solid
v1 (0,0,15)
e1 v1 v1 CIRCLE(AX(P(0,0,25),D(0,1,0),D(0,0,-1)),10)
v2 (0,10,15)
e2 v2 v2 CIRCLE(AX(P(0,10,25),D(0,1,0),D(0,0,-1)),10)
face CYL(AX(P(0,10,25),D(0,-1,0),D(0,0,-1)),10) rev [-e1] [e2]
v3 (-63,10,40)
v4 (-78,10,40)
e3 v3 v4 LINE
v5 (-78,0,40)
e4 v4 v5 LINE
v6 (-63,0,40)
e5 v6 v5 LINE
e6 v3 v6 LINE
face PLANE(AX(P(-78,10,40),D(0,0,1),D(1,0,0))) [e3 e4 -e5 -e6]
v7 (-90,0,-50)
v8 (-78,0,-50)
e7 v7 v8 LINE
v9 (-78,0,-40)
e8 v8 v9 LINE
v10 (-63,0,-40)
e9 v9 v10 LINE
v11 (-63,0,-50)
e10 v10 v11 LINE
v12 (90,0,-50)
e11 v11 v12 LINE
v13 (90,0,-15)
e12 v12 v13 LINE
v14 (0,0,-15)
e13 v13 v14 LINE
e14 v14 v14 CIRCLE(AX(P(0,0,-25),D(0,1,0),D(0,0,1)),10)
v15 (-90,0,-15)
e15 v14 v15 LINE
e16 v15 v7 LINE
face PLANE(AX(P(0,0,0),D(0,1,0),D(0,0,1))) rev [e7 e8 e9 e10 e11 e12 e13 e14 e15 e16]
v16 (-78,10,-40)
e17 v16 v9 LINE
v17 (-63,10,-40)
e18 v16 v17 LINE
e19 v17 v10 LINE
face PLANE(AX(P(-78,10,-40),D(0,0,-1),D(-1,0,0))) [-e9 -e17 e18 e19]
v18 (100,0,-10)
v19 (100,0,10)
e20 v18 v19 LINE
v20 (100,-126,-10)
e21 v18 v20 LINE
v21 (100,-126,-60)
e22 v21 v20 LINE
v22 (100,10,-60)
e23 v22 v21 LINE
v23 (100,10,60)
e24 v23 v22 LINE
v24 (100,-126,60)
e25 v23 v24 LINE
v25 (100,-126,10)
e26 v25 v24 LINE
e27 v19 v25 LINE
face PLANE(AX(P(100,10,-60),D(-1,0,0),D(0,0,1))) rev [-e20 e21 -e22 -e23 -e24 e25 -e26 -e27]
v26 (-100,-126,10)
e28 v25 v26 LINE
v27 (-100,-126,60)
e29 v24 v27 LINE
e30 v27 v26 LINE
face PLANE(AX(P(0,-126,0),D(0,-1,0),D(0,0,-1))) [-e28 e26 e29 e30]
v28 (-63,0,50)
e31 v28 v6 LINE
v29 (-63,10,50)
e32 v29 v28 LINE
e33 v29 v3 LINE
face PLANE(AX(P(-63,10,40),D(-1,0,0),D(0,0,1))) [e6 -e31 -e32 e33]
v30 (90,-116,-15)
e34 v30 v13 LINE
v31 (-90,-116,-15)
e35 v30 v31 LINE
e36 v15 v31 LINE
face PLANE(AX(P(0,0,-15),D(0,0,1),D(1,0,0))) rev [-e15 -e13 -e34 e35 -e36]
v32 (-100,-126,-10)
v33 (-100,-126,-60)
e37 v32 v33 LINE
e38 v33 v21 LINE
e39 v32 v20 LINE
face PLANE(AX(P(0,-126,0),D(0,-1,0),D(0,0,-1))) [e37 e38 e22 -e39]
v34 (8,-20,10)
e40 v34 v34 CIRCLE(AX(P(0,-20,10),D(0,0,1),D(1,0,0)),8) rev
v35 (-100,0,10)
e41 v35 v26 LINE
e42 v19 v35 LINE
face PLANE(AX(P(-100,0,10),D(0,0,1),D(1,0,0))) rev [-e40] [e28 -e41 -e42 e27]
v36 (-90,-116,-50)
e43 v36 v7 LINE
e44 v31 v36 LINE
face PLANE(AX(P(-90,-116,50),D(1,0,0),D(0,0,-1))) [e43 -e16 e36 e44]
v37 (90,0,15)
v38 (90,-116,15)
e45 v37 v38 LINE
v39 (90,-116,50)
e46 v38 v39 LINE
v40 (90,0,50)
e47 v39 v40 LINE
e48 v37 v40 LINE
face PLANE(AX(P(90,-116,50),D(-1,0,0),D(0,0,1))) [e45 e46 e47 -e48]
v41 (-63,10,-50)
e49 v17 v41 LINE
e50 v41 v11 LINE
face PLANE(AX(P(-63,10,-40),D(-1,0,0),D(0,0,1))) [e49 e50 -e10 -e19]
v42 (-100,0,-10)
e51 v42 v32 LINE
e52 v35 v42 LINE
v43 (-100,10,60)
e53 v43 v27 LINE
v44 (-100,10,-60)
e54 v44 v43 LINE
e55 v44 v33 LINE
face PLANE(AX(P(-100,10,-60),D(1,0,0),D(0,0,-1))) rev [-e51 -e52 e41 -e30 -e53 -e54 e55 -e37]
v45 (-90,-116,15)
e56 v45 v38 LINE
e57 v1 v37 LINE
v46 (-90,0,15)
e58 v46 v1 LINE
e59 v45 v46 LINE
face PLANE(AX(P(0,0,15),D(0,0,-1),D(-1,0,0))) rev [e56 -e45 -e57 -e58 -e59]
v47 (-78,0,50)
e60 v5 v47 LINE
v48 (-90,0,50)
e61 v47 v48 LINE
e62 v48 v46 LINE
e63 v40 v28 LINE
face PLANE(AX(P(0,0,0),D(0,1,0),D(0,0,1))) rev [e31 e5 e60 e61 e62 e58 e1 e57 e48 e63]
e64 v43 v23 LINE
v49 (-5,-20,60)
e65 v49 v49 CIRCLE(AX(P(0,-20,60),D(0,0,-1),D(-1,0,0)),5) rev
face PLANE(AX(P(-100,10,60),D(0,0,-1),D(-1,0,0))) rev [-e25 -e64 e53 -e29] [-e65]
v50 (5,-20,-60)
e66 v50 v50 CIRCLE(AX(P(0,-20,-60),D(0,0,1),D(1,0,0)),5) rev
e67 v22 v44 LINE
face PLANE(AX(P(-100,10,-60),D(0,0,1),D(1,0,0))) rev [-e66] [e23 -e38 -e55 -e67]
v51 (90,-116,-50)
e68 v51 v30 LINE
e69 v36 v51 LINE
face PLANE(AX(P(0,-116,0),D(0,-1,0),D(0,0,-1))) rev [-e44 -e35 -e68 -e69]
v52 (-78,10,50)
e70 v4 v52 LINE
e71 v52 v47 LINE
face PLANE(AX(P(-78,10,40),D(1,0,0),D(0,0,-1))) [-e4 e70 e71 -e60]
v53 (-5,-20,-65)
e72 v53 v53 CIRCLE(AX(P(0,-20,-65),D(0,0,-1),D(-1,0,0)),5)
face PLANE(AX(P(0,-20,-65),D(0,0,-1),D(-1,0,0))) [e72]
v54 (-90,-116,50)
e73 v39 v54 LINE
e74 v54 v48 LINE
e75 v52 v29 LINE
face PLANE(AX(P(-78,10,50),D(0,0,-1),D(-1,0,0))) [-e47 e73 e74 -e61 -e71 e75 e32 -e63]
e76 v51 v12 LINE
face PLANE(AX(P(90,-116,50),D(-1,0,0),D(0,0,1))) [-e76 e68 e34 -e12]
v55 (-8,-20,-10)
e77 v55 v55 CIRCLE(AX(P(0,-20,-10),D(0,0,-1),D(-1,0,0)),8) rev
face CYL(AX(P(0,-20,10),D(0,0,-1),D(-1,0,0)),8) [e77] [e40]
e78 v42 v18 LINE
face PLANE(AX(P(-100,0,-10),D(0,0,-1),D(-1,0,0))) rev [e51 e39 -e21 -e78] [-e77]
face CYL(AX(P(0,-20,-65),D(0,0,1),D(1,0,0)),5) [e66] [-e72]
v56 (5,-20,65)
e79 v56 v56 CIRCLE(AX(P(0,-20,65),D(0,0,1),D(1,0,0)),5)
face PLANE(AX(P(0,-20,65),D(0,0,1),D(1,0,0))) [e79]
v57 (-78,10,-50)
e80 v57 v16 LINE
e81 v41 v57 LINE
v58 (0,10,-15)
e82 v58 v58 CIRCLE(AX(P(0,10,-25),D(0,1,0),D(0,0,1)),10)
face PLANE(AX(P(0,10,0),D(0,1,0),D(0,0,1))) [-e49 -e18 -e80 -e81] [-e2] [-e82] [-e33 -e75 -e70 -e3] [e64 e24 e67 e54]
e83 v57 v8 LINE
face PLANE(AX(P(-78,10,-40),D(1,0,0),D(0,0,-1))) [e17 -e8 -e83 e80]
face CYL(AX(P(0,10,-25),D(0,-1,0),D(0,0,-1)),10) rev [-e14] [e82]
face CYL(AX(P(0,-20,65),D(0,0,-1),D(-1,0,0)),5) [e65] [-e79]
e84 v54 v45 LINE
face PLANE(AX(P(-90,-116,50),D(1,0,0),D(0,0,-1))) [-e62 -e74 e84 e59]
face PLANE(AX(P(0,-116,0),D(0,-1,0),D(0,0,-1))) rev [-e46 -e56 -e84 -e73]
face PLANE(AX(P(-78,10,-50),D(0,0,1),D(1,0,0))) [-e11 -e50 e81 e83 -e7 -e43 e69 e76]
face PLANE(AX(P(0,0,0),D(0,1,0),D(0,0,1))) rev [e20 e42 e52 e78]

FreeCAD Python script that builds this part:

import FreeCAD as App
import Part
import Sketcher

V = App.Vector


def add_polygon(sketch, points):
    """Adds a closed chain of lines whose ends are joined by coincident constraints."""
    first, n = sketch.GeometryCount, len(points)
    for a, b in zip(points, points[1:] + points[:1]):
        sketch.addGeometry(Part.LineSegment(App.Vector(*a, 0), App.Vector(*b, 0)), False)
    for i in range(n):
        sketch.addConstraint(Sketcher.Constraint("Coincident", first + i, 2, first + (i + 1) % n, 1))

doc = App.newDocument("Part")
params = doc.addObject("Spreadsheet::Sheet", "Params")
for row, (alias, value) in enumerate([
    ("sketch1_diameter", "20 mm"),
    ("sketch1_width", "200 mm"),
    ("sketch1_width2", "15 mm"),
    ("sketch1_height", "120 mm"),
    ("sketch1_height2", "10 mm"),
    ("pad1_length", "10 mm"),
    ("sketch2_width", "200 mm"),
    ("sketch2_width2", "180 mm"),
    ("sketch2_height", "120 mm"),
    ("sketch2_height2", "100 mm"),
    ("pad2_length", "116 mm"),
    ("sketch3_width", "200 mm"),
    ("sketch3_height", "120 mm"),
    ("pad3_length", "10 mm"),
    ("sketch4_width", "200 mm"),
    ("sketch4_height", "20 mm"),
    ("pocket1_length", "126 mm"),
    ("sketch5_width", "200 mm"),
    ("sketch5_height", "126 mm"),
    ("pad4_length", "5 mm"),
    ("sketch6_width", "200 mm"),
    ("sketch6_height", "126 mm"),
    ("pad5_length", "5 mm"),
    ("sketch7_diameter", "16 mm"),
    ("pad6_length", "20 mm"),
    ("sketch8_diameter", "10 mm"),
    ("pad7_length", "5 mm"),
    ("sketch9_diameter", "10 mm"),
    ("pad8_length", "5 mm"),
], start=1):
    params.set(f"A{row}", alias)
    params.set(f"B{row}", "=" + value)
    params.setAlias(f"B{row}", alias)

body = doc.addObject("PartDesign::Body", "Body")

sketch1 = body.newObject("Sketcher::SketchObject", "Sketch")
sketch1.AttachmentSupport = (doc.getObject("XZ_Plane"), [""])
sketch1.MapMode = "FlatFace"
add_polygon(sketch1, [(-100, -60), (-100, 60), (100, 60), (100, -60)])
add_polygon(sketch1, [(-63, 50), (-78, 50), (-78, 40), (-63, 40)])
sketch1.addGeometry(Part.Circle(V(0, 25, 0), V(0, 0, 1), 10), False)
add_polygon(sketch1, [(-63, -40), (-78, -40), (-78, -50), (-63, -50)])
sketch1.addGeometry(Part.Circle(V(0, -25, 0), V(0, 0, 1), 10), False)
sketch1.addConstraint(Sketcher.Constraint("Vertical", 0))
sketch1.addConstraint(Sketcher.Constraint("Horizontal", 1))
sketch1.addConstraint(Sketcher.Constraint("Vertical", 2))
sketch1.addConstraint(Sketcher.Constraint("Horizontal", 3))
sketch1.addConstraint(Sketcher.Constraint("Horizontal", 4))
sketch1.addConstraint(Sketcher.Constraint("Vertical", 5))
sketch1.addConstraint(Sketcher.Constraint("Horizontal", 6))
sketch1.addConstraint(Sketcher.Constraint("Vertical", 7))
sketch1.addConstraint(Sketcher.Constraint("Horizontal", 9))
sketch1.addConstraint(Sketcher.Constraint("Vertical", 10))
sketch1.addConstraint(Sketcher.Constraint("Horizontal", 11))
sketch1.addConstraint(Sketcher.Constraint("Vertical", 12))
sketch1.addConstraint(Sketcher.Constraint("Equal", 8, 13))
sketch1.addConstraint(Sketcher.Constraint("Symmetric", 8, 3, 13, 3, -1, 1))
sketch1.addConstraint(Sketcher.Constraint("Symmetric", 0, 2, 2, 2, -1, 1))
sketch1.addConstraint(Sketcher.Constraint("Symmetric", 5, 2, 9, 2, -1))
sketch1.addConstraint(Sketcher.Constraint("Symmetric", 7, 2, 11, 2, -1))
sketch1.addConstraint(Sketcher.Constraint("PointOnObject", 8, 3, -2))
sketch1.addConstraint(Sketcher.Constraint("Diameter", 8, 20.0))
sketch1.addConstraint(Sketcher.Constraint("DistanceX", 1, 1, 1, 2, 200.0))
sketch1.addConstraint(Sketcher.Constraint("DistanceX", 4, 2, 4, 1, 15.0))
sketch1.addConstraint(Sketcher.Constraint("DistanceY", 0, 1, 0, 2, 120.0))
sketch1.addConstraint(Sketcher.Constraint("DistanceY", 5, 2, 5, 1, 10.0))
sketch1.addConstraint(Sketcher.Constraint("DistanceY", -1, 1, 8, 3, 25.0))
sketch1.addConstraint(Sketcher.Constraint("DistanceX", 4, 2, -1, 1, 78.0))
sketch1.addConstraint(Sketcher.Constraint("DistanceY", -1, 1, 4, 2, 50.0))
sketch1.setExpression("Constraints[30]", "Params.sketch1_diameter")
sketch1.setExpression("Constraints[31]", "Params.sketch1_width")
sketch1.setExpression("Constraints[32]", "Params.sketch1_width2")
sketch1.setExpression("Constraints[33]", "Params.sketch1_height")
sketch1.setExpression("Constraints[34]", "Params.sketch1_height2")
pad1 = body.newObject("PartDesign::Pad", "Pad")
pad1.Profile = sketch1
pad1.setExpression("Length", "Params.pad1_length")
pad1.Reversed = True

sketch2 = body.newObject("Sketcher::SketchObject", "Sketch001")
sketch2.AttachmentSupport = (doc.getObject("XZ_Plane"), [""])
sketch2.MapMode = "FlatFace"
add_polygon(sketch2, [(-100, 60), (-100, -60), (100, -60), (100, 60)])
add_polygon(sketch2, [(90, -50), (-90, -50), (-90, 50), (90, 50)])
sketch2.addConstraint(Sketcher.Constraint("Vertical", 0))
sketch2.addConstraint(Sketcher.Constraint("Horizontal", 1))
sketch2.addConstraint(Sketcher.Constraint("Vertical", 2))
sketch2.addConstraint(Sketcher.Constraint("Horizontal", 3))
sketch2.addConstraint(Sketcher.Constraint("Horizontal", 4))
sketch2.addConstraint(Sketcher.Constraint("Vertical", 5))
sketch2.addConstraint(Sketcher.Constraint("Horizontal", 6))
sketch2.addConstraint(Sketcher.Constraint("Vertical", 7))
sketch2.addConstraint(Sketcher.Constraint("Symmetric", 0, 2, 2, 2, -1, 1))
sketch2.addConstraint(Sketcher.Constraint("Symmetric", 4, 2, 6, 2, -1, 1))
sketch2.addConstraint(Sketcher.Constraint("DistanceX", 1, 1, 1, 2, 200.0))
sketch2.addConstraint(Sketcher.Constraint("DistanceX", 4, 2, 4, 1, 180.0))
sketch2.addConstraint(Sketcher.Constraint("DistanceY", 0, 2, 0, 1, 120.0))
sketch2.addConstraint(Sketcher.Constraint("DistanceY", 5, 1, 5, 2, 100.0))
sketch2.setExpression("Constraints[18]", "Params.sketch2_width")
sketch2.setExpression("Constraints[19]", "Params.sketch2_width2")
sketch2.setExpression("Constraints[20]", "Params.sketch2_height")
sketch2.setExpression("Constraints[21]", "Params.sketch2_height2")
pad2 = body.newObject("PartDesign::Pad", "Pad001")
pad2.Profile = sketch2
pad2.setExpression("Length", "Params.pad2_length")

sketch3 = body.newObject("Sketcher::SketchObject", "Sketch002")
sketch3.AttachmentSupport = (doc.getObject("XZ_Plane"), [""])
sketch3.MapMode = "FlatFace"
sketch3.AttachmentOffset = App.Placement(V(0, 0, 116), App.Rotation())
add_polygon(sketch3, [(-100, 60), (-100, -60), (100, -60), (100, 60)])
sketch3.addConstraint(Sketcher.Constraint("Vertical", 0))
sketch3.addConstraint(Sketcher.Constraint("Horizontal", 1))
sketch3.addConstraint(Sketcher.Constraint("Vertical", 2))
sketch3.addConstraint(Sketcher.Constraint("Horizontal", 3))
sketch3.addConstraint(Sketcher.Constraint("Symmetric", 0, 2, 2, 2, -1, 1))
sketch3.addConstraint(Sketcher.Constraint("DistanceX", 1, 1, 1, 2, 200.0))
sketch3.addConstraint(Sketcher.Constraint("DistanceY", 0, 2, 0, 1, 120.0))
sketch3.setExpression("Constraints[9]", "Params.sketch3_width")
sketch3.setExpression("Constraints[10]", "Params.sketch3_height")
pad3 = body.newObject("PartDesign::Pad", "Pad002")
pad3.Profile = sketch3
pad3.setExpression("Length", "Params.pad3_length")

sketch4 = body.newObject("Sketcher::SketchObject", "Sketch003")
sketch4.AttachmentSupport = (doc.getObject("XZ_Plane"), [""])
sketch4.MapMode = "FlatFace"
sketch4.AttachmentOffset = App.Placement(V(0, 0, 126), App.Rotation())
add_polygon(sketch4, [(-100, 10), (-100, -10), (100, -10), (100, 10)])
sketch4.addConstraint(Sketcher.Constraint("Vertical", 0))
sketch4.addConstraint(Sketcher.Constraint("Horizontal", 1))
sketch4.addConstraint(Sketcher.Constraint("Vertical", 2))
sketch4.addConstraint(Sketcher.Constraint("Horizontal", 3))
sketch4.addConstraint(Sketcher.Constraint("Symmetric", 0, 2, 2, 2, -1, 1))
sketch4.addConstraint(Sketcher.Constraint("DistanceX", 1, 1, 1, 2, 200.0))
sketch4.addConstraint(Sketcher.Constraint("DistanceY", 0, 2, 0, 1, 20.0))
sketch4.setExpression("Constraints[9]", "Params.sketch4_width")
sketch4.setExpression("Constraints[10]", "Params.sketch4_height")
pocket1 = body.newObject("PartDesign::Pocket", "Pocket")
pocket1.Profile = sketch4
pocket1.setExpression("Length", "Params.pocket1_length")

sketch5 = body.newObject("Sketcher::SketchObject", "Sketch004")
sketch5.AttachmentSupport = (doc.getObject("XY_Plane"), [""])
sketch5.MapMode = "FlatFace"
sketch5.AttachmentOffset = App.Placement(V(0, 0, 10), App.Rotation())
add_polygon(sketch5, [(100, 0), (100, -126), (-100, -126), (-100, 0)])
sketch5.addConstraint(Sketcher.Constraint("Vertical", 0))
sketch5.addConstraint(Sketcher.Constraint("Horizontal", 1))
sketch5.addConstraint(Sketcher.Constraint("Vertical", 2))
sketch5.addConstraint(Sketcher.Constraint("Horizontal", 3))
sketch5.addConstraint(Sketcher.Constraint("Symmetric", 2, 2, 3, 2, -1, 1))
sketch5.addConstraint(Sketcher.Constraint("DistanceX", 1, 2, 1, 1, 200.0))
sketch5.addConstraint(Sketcher.Constraint("DistanceY", 0, 2, 0, 1, 126.0))
sketch5.setExpression("Constraints[9]", "Params.sketch5_width")
sketch5.setExpression("Constraints[10]", "Params.sketch5_height")
pad4 = body.newObject("PartDesign::Pad", "Pad003")
pad4.Profile = sketch5
pad4.setExpression("Length", "Params.pad4_length")

sketch6 = body.newObject("Sketcher::SketchObject", "Sketch005")
sketch6.AttachmentSupport = (doc.getObject("XY_Plane"), [""])
sketch6.MapMode = "FlatFace"
sketch6.AttachmentOffset = App.Placement(V(0, 0, -10), App.Rotation())
add_polygon(sketch6, [(-100, 0), (-100, -126), (100, -126), (100, 0)])
sketch6.addConstraint(Sketcher.Constraint("Vertical", 0))
sketch6.addConstraint(Sketcher.Constraint("Horizontal", 1))
sketch6.addConstraint(Sketcher.Constraint("Vertical", 2))
sketch6.addConstraint(Sketcher.Constraint("Horizontal", 3))
sketch6.addConstraint(Sketcher.Constraint("Symmetric", 2, 2, 3, 2, -1, 1))
sketch6.addConstraint(Sketcher.Constraint("DistanceX", 1, 1, 1, 2, 200.0))
sketch6.addConstraint(Sketcher.Constraint("DistanceY", 0, 2, 0, 1, 126.0))
sketch6.setExpression("Constraints[9]", "Params.sketch6_width")
sketch6.setExpression("Constraints[10]", "Params.sketch6_height")
pad5 = body.newObject("PartDesign::Pad", "Pad004")
pad5.Profile = sketch6
pad5.setExpression("Length", "Params.pad5_length")
pad5.Reversed = True

sketch7 = body.newObject("Sketcher::SketchObject", "Sketch006")
sketch7.AttachmentSupport = (doc.getObject("XY_Plane"), [""])
sketch7.MapMode = "FlatFace"
sketch7.AttachmentOffset = App.Placement(V(0, 0, -10), App.Rotation())
sketch7.addGeometry(Part.Circle(V(0, -20, 0), V(0, 0, 1), 8), False)
sketch7.addConstraint(Sketcher.Constraint("PointOnObject", 0, 3, -2))
sketch7.addConstraint(Sketcher.Constraint("Diameter", 0, 16.0))
sketch7.addConstraint(Sketcher.Constraint("DistanceY", 0, 3, -1, 1, 20.0))
sketch7.setExpression("Constraints[1]", "Params.sketch7_diameter")
pad6 = body.newObject("PartDesign::Pad", "Pad005")
pad6.Profile = sketch7
pad6.setExpression("Length", "Params.pad6_length")

sketch8 = body.newObject("Sketcher::SketchObject", "Sketch007")
sketch8.AttachmentSupport = (doc.getObject("XY_Plane"), [""])
sketch8.MapMode = "FlatFace"
sketch8.AttachmentOffset = App.Placement(V(0, 0, 60), App.Rotation())
sketch8.addGeometry(Part.Circle(V(0, -20, 0), V(0, 0, 1), 5), False)
sketch8.addConstraint(Sketcher.Constraint("PointOnObject", 0, 3, -2))
sketch8.addConstraint(Sketcher.Constraint("Diameter", 0, 10.0))
sketch8.addConstraint(Sketcher.Constraint("DistanceY", 0, 3, -1, 1, 20.0))
sketch8.setExpression("Constraints[1]", "Params.sketch8_diameter")
pad7 = body.newObject("PartDesign::Pad", "Pad006")
pad7.Profile = sketch8
pad7.setExpression("Length", "Params.pad7_length")

sketch9 = body.newObject("Sketcher::SketchObject", "Sketch008")
sketch9.AttachmentSupport = (doc.getObject("XY_Plane"), [""])
sketch9.MapMode = "FlatFace"
sketch9.AttachmentOffset = App.Placement(V(0, 0, -65), App.Rotation())
sketch9.addGeometry(Part.Circle(V(0, -20, 0), V(0, 0, 1), 5), False)
sketch9.addConstraint(Sketcher.Constraint("PointOnObject", 0, 3, -2))
sketch9.addConstraint(Sketcher.Constraint("Diameter", 0, 10.0))
sketch9.addConstraint(Sketcher.Constraint("DistanceY", 0, 3, -1, 1, 20.0))
sketch9.setExpression("Constraints[1]", "Params.sketch9_diameter")
pad8 = body.newObject("PartDesign::Pad", "Pad007")
pad8.Profile = sketch9
pad8.setExpression("Length", "Params.pad8_length")

doc.recompute()
